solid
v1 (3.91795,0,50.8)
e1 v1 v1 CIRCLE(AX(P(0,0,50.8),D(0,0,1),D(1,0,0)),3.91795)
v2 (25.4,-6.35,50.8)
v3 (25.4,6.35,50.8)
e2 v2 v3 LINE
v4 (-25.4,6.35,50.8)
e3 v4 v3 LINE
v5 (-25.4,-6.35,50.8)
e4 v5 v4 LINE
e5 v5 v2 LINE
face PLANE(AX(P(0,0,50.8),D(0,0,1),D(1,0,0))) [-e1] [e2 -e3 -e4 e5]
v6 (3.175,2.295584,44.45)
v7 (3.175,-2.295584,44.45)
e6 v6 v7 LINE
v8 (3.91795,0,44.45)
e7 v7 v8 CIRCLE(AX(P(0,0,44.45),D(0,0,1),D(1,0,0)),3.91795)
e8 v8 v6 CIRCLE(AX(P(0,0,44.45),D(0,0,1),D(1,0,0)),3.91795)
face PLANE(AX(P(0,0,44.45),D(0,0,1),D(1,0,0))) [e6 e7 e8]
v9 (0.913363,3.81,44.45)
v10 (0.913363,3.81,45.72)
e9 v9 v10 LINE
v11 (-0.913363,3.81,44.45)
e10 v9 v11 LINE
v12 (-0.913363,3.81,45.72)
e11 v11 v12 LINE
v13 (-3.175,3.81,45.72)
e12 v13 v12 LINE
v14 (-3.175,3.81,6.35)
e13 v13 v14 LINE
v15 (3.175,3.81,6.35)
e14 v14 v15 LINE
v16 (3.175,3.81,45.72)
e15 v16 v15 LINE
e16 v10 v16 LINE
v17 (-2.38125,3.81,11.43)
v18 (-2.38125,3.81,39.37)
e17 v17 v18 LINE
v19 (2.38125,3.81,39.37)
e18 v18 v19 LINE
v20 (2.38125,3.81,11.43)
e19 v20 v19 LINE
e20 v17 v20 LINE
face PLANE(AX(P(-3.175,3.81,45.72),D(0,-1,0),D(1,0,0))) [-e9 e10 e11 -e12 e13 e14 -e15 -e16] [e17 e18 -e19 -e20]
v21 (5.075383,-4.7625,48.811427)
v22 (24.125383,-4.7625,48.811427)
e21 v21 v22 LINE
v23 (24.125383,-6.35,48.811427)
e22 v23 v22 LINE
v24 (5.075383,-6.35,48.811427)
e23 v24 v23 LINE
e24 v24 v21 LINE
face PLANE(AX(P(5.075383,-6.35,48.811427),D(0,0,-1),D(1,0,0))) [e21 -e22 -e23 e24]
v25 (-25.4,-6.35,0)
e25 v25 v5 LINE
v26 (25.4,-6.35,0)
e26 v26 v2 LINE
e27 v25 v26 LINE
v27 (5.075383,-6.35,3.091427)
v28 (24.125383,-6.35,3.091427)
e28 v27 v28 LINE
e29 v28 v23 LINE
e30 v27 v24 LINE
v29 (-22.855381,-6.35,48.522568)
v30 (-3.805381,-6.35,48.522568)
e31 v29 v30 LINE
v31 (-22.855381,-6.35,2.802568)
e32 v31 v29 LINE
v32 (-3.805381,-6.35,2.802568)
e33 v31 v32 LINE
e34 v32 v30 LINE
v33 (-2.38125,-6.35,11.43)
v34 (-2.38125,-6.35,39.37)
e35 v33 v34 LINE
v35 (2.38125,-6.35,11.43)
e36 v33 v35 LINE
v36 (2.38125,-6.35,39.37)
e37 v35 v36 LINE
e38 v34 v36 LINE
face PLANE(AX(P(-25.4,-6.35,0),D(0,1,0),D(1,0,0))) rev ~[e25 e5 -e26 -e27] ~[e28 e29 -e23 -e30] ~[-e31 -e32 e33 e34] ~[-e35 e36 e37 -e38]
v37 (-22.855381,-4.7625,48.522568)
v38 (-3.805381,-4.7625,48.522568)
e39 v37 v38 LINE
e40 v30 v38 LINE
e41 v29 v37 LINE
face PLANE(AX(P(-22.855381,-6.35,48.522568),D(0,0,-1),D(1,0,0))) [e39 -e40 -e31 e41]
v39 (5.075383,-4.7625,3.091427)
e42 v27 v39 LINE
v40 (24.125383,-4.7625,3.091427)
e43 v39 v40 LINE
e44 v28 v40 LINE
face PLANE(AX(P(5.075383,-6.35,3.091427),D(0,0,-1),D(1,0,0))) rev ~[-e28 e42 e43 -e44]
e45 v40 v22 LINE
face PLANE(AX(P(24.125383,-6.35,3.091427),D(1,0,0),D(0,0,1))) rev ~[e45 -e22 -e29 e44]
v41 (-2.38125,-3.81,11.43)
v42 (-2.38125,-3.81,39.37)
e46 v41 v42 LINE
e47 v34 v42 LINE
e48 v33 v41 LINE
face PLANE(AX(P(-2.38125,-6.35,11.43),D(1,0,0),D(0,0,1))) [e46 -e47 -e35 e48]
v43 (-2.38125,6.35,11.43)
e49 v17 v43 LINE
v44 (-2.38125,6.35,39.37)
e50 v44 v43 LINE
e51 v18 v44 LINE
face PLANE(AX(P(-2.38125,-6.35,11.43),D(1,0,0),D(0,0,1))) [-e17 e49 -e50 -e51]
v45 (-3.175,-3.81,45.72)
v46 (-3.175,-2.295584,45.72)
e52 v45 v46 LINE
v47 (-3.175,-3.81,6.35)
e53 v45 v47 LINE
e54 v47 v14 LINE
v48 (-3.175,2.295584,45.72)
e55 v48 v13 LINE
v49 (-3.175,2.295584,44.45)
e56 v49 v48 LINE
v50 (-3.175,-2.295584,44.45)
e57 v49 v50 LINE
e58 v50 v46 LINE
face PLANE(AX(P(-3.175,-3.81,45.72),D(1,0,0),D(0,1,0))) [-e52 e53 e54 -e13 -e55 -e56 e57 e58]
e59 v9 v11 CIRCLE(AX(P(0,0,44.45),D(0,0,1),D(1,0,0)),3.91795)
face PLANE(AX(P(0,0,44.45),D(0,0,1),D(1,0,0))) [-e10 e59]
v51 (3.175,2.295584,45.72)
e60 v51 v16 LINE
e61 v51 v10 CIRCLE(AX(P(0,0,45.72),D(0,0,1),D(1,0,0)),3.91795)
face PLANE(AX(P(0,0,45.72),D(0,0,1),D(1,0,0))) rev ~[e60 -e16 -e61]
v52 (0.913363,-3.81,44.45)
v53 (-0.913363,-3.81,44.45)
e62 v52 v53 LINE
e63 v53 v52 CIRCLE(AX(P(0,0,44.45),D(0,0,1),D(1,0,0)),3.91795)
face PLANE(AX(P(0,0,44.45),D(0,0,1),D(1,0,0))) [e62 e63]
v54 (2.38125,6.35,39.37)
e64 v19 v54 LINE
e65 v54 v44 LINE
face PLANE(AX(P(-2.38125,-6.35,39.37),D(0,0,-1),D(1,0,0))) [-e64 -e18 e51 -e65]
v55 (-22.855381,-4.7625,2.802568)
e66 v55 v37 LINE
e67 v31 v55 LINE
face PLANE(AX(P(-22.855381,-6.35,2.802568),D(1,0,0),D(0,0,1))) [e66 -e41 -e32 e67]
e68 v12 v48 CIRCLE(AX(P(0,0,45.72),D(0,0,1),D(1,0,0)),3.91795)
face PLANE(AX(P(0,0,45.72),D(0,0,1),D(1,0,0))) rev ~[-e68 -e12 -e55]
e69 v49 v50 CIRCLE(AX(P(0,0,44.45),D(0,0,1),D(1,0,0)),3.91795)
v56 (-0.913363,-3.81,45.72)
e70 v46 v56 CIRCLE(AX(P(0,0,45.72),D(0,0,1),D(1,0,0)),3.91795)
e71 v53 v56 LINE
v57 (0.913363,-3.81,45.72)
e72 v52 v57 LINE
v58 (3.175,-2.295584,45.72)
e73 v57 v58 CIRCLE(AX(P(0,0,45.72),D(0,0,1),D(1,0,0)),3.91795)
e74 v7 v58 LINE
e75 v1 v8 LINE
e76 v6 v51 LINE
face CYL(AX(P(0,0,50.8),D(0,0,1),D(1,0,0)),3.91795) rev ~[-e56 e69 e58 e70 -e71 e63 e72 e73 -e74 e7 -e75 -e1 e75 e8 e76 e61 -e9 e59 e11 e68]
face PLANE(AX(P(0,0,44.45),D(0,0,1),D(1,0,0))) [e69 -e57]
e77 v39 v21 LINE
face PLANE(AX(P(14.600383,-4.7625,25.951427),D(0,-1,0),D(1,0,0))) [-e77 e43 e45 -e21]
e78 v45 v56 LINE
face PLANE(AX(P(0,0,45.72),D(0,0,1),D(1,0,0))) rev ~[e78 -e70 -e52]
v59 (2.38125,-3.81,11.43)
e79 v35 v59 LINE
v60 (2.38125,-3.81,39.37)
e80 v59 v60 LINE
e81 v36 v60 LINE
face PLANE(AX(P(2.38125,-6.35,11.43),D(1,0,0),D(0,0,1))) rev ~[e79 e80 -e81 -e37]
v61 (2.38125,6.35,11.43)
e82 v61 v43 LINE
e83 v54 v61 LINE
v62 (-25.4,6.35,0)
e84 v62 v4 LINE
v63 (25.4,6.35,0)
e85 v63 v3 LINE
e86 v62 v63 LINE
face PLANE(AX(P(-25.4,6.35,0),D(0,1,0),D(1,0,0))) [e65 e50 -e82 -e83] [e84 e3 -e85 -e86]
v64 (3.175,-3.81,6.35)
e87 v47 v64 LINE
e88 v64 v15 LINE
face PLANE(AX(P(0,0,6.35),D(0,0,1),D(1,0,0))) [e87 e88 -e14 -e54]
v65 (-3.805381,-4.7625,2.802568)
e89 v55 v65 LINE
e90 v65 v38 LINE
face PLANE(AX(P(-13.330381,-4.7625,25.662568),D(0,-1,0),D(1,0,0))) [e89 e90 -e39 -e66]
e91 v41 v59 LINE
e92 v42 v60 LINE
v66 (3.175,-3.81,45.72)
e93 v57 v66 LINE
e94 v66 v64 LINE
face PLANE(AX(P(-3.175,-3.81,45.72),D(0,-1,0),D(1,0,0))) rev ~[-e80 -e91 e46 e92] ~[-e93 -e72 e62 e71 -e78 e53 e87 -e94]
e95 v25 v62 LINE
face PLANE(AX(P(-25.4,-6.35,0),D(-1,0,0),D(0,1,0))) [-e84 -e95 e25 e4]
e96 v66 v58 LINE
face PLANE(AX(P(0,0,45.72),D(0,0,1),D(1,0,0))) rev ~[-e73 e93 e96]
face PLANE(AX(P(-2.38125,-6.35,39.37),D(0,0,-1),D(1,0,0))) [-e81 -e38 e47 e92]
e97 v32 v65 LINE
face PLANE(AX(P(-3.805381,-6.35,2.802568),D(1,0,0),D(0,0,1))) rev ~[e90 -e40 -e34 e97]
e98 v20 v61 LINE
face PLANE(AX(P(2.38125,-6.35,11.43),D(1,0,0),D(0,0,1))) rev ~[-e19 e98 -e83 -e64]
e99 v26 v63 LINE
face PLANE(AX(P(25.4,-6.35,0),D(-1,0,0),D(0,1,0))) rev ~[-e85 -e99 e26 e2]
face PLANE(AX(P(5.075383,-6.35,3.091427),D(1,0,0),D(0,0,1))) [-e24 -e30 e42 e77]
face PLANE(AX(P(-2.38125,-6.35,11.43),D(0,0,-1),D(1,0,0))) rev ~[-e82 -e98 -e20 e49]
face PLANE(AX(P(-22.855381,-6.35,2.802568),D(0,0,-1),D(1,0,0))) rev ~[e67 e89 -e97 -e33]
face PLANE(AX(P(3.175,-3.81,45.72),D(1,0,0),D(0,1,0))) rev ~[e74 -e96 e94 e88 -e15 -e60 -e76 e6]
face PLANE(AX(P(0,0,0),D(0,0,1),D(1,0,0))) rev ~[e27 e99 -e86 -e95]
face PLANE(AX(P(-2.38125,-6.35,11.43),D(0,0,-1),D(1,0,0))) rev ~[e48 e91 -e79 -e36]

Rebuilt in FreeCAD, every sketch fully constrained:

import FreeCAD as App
import Part
import Sketcher
from FreeCAD import Vector
Q = App.Units.Quantity


def add_polygon(sketch, points):
    """Adds a closed chain of lines whose ends are joined by coincident constraints."""
    first, n = sketch.GeometryCount, len(points)
    for a, b in zip(points, points[1:] + points[:1]):
        sketch.addGeometry(Part.LineSegment(App.Vector(*a, 0), App.Vector(*b, 0)), False)
    for i in range(n):
        sketch.addConstraint(Sketcher.Constraint("Coincident", first + i, 2, first + (i + 1) % n, 1))

doc = App.newDocument("Part")
params = doc.addObject("Spreadsheet::Sheet", "Params")
for row, (alias, value) in enumerate([
    ("sketch1_width", "2 in"),
    ("sketch1_height", "0.5 in"),
    ("pad1_length", "2 in"),
    ("sketch2_height", "0.3 in"),
    ("sketch2_width", "0.25 in"),
    ("pocket1_length", "1.55 in"),
    ("pocket2_length", "0.25 in"),
    ("sketch4_height", "1.1 in"),
    ("sketch4_width", "0.1875 in"),
    ("sketch5_height", "1.8 in"),
    ("sketch5_width", "0.75 in"),
    ("pocket4_length", "0.0625 in"),
    ("sketch6_height", "1.8 in"),
    ("sketch6_width", "0.75 in"),
    ("pocket5_length", "0.0625 in"),
], start=1):
    params.set(f"A{row}", alias)
    params.set(f"B{row}", "=" + value)
    params.setAlias(f"B{row}", alias)

body = doc.addObject("PartDesign::Body", "Body")

# Sketch on XY plane
sketch1 = doc.addObject("Sketcher::SketchObject", "Sketch")
body.addObject(sketch1)
sketch1.AttachmentSupport = (doc.XY_Plane, [""])
sketch1.MapMode = "FlatFace"
add_polygon(sketch1, [(-25, 6), (-25, -6), (25, -6), (25, 6)])  # lines 0-3
sketch1.addConstraint(Sketcher.Constraint("Vertical", 0))
sketch1.addConstraint(Sketcher.Constraint("Horizontal", 1))
sketch1.addConstraint(Sketcher.Constraint("Vertical", 2))
sketch1.addConstraint(Sketcher.Constraint("Horizontal", 3))
sketch1.addConstraint(Sketcher.Constraint("Symmetric", 0, 2, 2, 2, -1, 1))
sketch1.addConstraint(Sketcher.Constraint("DistanceX", 1, 1, 1, 2, Q("2 in")))
sketch1.addConstraint(Sketcher.Constraint("DistanceY", 0, 2, 0, 1, Q("0.5 in")))
sketch1.setExpression("Constraints[9]", "Params.sketch1_width")
sketch1.setExpression("Constraints[10]", "Params.sketch1_height")
pad1 = doc.addObject("PartDesign::Pad", "Pad")
body.addObject(pad1)
pad1.Profile = sketch1
pad1.setExpression("Length", "Params.pad1_length")

# Sketch on XY plane
sketch2 = doc.addObject("Sketcher::SketchObject", "Sketch001")
body.addObject(sketch2)
sketch2.AttachmentSupport = (doc.XY_Plane, [""])
sketch2.MapMode = "FlatFace"
sketch2.AttachmentOffset = App.Placement(Vector(0, 0, 1.8 * 25.4), App.Rotation())
add_polygon(sketch2, [(-3, 4), (-3, -4), (3, -4), (3, 4)])  # lines 0-3
sketch2.addConstraint(Sketcher.Constraint("Vertical", 0))
sketch2.addConstraint(Sketcher.Constraint("Horizontal", 1))
sketch2.addConstraint(Sketcher.Constraint("Vertical", 2))
sketch2.addConstraint(Sketcher.Constraint("Horizontal", 3))
sketch2.addConstraint(Sketcher.Constraint("Symmetric", 0, 2, 2, 2, -1, 1))
sketch2.addConstraint(Sketcher.Constraint("DistanceY", 0, 2, 0, 1, Q("0.3 in")))
sketch2.addConstraint(Sketcher.Constraint("DistanceX", 1, 1, 1, 2, Q("0.25 in")))
sketch2.setExpression("Constraints[9]", "Params.sketch2_height")
sketch2.setExpression("Constraints[10]", "Params.sketch2_width")
pocket1 = doc.addObject("PartDesign::Pocket", "Pocket")
body.addObject(pocket1)
pocket1.Profile = sketch2
pocket1.setExpression("Length", "Params.pocket1_length")

# Sketch on XY plane
sketch3 = doc.addObject("Sketcher::SketchObject", "Sketch002")
body.addObject(sketch3)
sketch3.AttachmentSupport = (doc.XY_Plane, [""])
sketch3.MapMode = "FlatFace"
sketch3.AttachmentOffset = App.Placement(Vector(0, 0, 2 * 25.4), App.Rotation())
sketch3.addGeometry(Part.Circle(Vector(0, 0, 0), Vector(0, 0, 1), 3.9), False)
sketch3.addConstraint(Sketcher.Constraint("Coincident", 0, 3, -1, 1))
sketch3.addConstraint(Sketcher.Constraint("Diameter", 0, Q("0.3085 in")))
pocket2 = doc.addObject("PartDesign::Pocket", "Pocket001")
body.addObject(pocket2)
pocket2.Profile = sketch3
pocket2.setExpression("Length", "Params.pocket2_length")

# Sketch on XZ plane
sketch4 = doc.addObject("Sketcher::SketchObject", "Sketch003")
body.addObject(sketch4)
sketch4.AttachmentSupport = (doc.XZ_Plane, [""])
sketch4.MapMode = "FlatFace"
sketch4.AttachmentOffset = App.Placement(Vector(0, 0, 0.25 * 25.4), App.Rotation())
add_polygon(sketch4, [(-2.4, 39.4), (-2.4, 11.4), (2.4, 11.4), (2.4, 39.4)])  # lines 0-3
sketch4.addConstraint(Sketcher.Constraint("Vertical", 0))
sketch4.addConstraint(Sketcher.Constraint("Horizontal", 1))
sketch4.addConstraint(Sketcher.Constraint("Vertical", 2))
sketch4.addConstraint(Sketcher.Constraint("Horizontal", 3))
sketch4.addConstraint(Sketcher.Constraint("DistanceY", 0, 2, 0, 1, Q("1.1 in")))
sketch4.addConstraint(Sketcher.Constraint("DistanceX", 1, 1, 1, 2, Q("0.1875 in")))
sketch4.addConstraint(Sketcher.Constraint("DistanceY", -1, 1, 0, 2, Q("0.45 in")))
sketch4.addConstraint(Sketcher.Constraint("DistanceX", 0, 2, -1, 1, Q("0.09375 in")))
sketch4.setExpression("Constraints[8]", "Params.sketch4_height")
sketch4.setExpression("Constraints[9]", "Params.sketch4_width")
pocket3 = doc.addObject("PartDesign::Pocket", "Pocket002")
body.addObject(pocket3)
pocket3.Profile = sketch4
pocket3.Type = "ThroughAll"

# Sketch on XZ plane
sketch5 = doc.addObject("Sketcher::SketchObject", "Sketch004")
body.addObject(sketch5)
sketch5.AttachmentSupport = (doc.XZ_Plane, [""])
sketch5.MapMode = "FlatFace"
sketch5.AttachmentOffset = App.Placement(Vector(0, 0, 0.25 * 25.4), App.Rotation())
add_polygon(sketch5, [(-23, 49), (-23, 3), (-4, 3), (-4, 49)])  # lines 0-3
sketch5.addConstraint(Sketcher.Constraint("Vertical", 0))
sketch5.addConstraint(Sketcher.Constraint("Horizontal", 1))
sketch5.addConstraint(Sketcher.Constraint("Vertical", 2))
sketch5.addConstraint(Sketcher.Constraint("Horizontal", 3))
sketch5.addConstraint(Sketcher.Constraint("DistanceY", 0, 2, 0, 1, Q("1.8 in")))
sketch5.addConstraint(Sketcher.Constraint("DistanceX", 1, 1, 1, 2, Q("0.75 in")))
sketch5.addConstraint(Sketcher.Constraint("DistanceX", 0, 2, -1, 1, Q("22.855381 mm")))
sketch5.addConstraint(Sketcher.Constraint("DistanceY", -1, 1, 0, 2, Q("2.802568 mm")))
sketch5.setExpression("Constraints[8]", "Params.sketch5_height")
sketch5.setExpression("Constraints[9]", "Params.sketch5_width")
pocket4 = doc.addObject("PartDesign::Pocket", "Pocket003")
body.addObject(pocket4)
pocket4.Profile = sketch5
pocket4.setExpression("Length", "Params.pocket4_length")

# Sketch on XZ plane
sketch6 = doc.addObject("Sketcher::SketchObject", "Sketch005")
body.addObject(sketch6)
sketch6.AttachmentSupport = (doc.XZ_Plane, [""])
sketch6.MapMode = "FlatFace"
sketch6.AttachmentOffset = App.Placement(Vector(0, 0, 0.25 * 25.4), App.Rotation())
add_polygon(sketch6, [(5, 49), (5, 3), (24, 3), (24, 49)])  # lines 0-3
sketch6.addConstraint(Sketcher.Constraint("Vertical", 0))
sketch6.addConstraint(Sketcher.Constraint("Horizontal", 1))
sketch6.addConstraint(Sketcher.Constraint("Vertical", 2))
sketch6.addConstraint(Sketcher.Constraint("Horizontal", 3))
sketch6.addConstraint(Sketcher.Constraint("DistanceY", 0, 2, 0, 1, Q("1.8 in")))
sketch6.addConstraint(Sketcher.Constraint("DistanceX", 1, 1, 1, 2, Q("0.75 in")))
sketch6.addConstraint(Sketcher.Constraint("DistanceX", -1, 1, 0, 2, Q("5.075383 mm")))
sketch6.addConstraint(Sketcher.Constraint("DistanceY", -1, 1, 0, 2, Q("3.091427 mm")))
sketch6.setExpression("Constraints[8]", "Params.sketch6_height")
sketch6.setExpression("Constraints[9]", "Params.sketch6_width")
pocket5 = doc.addObject("PartDesign::Pocket", "Pocket004")
body.addObject(pocket5)
pocket5.Profile = sketch6
pocket5.setExpression("Length", "Params.pocket5_length")

doc.recompute()
